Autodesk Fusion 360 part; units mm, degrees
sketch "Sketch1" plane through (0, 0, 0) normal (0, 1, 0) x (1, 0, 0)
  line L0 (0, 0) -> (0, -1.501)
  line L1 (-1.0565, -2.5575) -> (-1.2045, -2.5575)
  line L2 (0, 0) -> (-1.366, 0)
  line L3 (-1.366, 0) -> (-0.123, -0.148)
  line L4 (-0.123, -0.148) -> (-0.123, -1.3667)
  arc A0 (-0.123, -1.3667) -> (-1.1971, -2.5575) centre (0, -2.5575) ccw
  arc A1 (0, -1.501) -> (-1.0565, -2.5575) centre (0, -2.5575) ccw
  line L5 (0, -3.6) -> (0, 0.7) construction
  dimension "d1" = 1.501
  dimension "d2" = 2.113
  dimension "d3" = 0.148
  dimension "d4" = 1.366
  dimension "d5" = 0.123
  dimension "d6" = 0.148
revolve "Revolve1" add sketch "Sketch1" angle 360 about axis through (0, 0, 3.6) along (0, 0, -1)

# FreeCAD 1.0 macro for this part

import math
import FreeCAD as App
import Part
import Sketcher
from FreeCAD import Vector
Q = App.Units.Quantity

doc = App.newDocument("Part")
body = doc.addObject("PartDesign::Body", "Body")

# Sketch on XZ plane
sketch1 = body.newObject("Sketcher::SketchObject", "Sketch")
sketch1.AttachmentSupport = (doc.getObject("XZ_Plane"), [""])
sketch1.MapMode = "FlatFace"
sketch1.addGeometry([
    Part.LineSegment(Vector(0, 1.5, 0), Vector(0, 0, 0)),  # 0
    Part.LineSegment(Vector(0, 0, 0), Vector(-1.37, 0, 0)),  # 1
    Part.LineSegment(Vector(-1.37, 0, 0), Vector(-0.12, 0.15, 0)),  # 2
    Part.LineSegment(Vector(-0.12, 0.15, 0), Vector(-0.12, 1.37, 0)),  # 3
    Part.ArcOfCircle(Part.Circle(Vector(0, 2.56, 0), Vector(0, 0, 1), 1.2), math.radians(180), math.radians(264)),  # 4
    Part.LineSegment(Vector(-1.2, 2.56, 0), Vector(-1.06, 2.56, 0)),  # 5
    Part.ArcOfCircle(Part.Circle(Vector(0, 2.56, 0), Vector(0, 0, 1), 1.06), math.radians(180), math.radians(270)),  # 6
], False)
sketch1.addConstraint([
    Sketcher.Constraint("Coincident", 0, 2, 1, 1),
    Sketcher.Constraint("Coincident", 1, 2, 2, 1),
    Sketcher.Constraint("Coincident", 2, 2, 3, 1),
    Sketcher.Constraint("Coincident", 3, 2, 4, 2),
    Sketcher.Constraint("Coincident", 4, 1, 5, 1),
    Sketcher.Constraint("Coincident", 5, 2, 6, 1),
    Sketcher.Constraint("Coincident", 6, 2, 0, 1),
    Sketcher.Constraint("Vertical", 0),
    Sketcher.Constraint("Horizontal", 1),
    Sketcher.Constraint("Vertical", 3),
    Sketcher.Constraint("Horizontal", 5),
    Sketcher.Constraint("Coincident", 0, 2, -1, 1),
    Sketcher.Constraint("Coincident", 6, 3, 4, 3),
    Sketcher.Constraint("PointOnObject", 4, 3, -2),
    Sketcher.Constraint("Horizontal", 6, 3, 4, 1),
    Sketcher.Constraint("Radius", 6, Q("1.0565 mm")),
    Sketcher.Constraint("DistanceX", 1, 2, 1, 1, Q("1.366 mm")),
    Sketcher.Constraint("DistanceY", 0, 2, 0, 1, Q("1.501 mm")),
    Sketcher.Constraint("DistanceX", 2, 2, -1, 1, Q("0.123 mm")),
    Sketcher.Constraint("DistanceY", -1, 1, 2, 2, Q("0.148 mm")),
    Sketcher.Constraint("Radius", 4, Q("1.1971 mm")),
])
revolution = body.newObject("PartDesign::Revolution", "Revolution")
revolution.Profile = sketch1
revolution.ReferenceAxis = (sketch1, ["V_Axis"])
revolution.Angle = 360

doc.recompute()
